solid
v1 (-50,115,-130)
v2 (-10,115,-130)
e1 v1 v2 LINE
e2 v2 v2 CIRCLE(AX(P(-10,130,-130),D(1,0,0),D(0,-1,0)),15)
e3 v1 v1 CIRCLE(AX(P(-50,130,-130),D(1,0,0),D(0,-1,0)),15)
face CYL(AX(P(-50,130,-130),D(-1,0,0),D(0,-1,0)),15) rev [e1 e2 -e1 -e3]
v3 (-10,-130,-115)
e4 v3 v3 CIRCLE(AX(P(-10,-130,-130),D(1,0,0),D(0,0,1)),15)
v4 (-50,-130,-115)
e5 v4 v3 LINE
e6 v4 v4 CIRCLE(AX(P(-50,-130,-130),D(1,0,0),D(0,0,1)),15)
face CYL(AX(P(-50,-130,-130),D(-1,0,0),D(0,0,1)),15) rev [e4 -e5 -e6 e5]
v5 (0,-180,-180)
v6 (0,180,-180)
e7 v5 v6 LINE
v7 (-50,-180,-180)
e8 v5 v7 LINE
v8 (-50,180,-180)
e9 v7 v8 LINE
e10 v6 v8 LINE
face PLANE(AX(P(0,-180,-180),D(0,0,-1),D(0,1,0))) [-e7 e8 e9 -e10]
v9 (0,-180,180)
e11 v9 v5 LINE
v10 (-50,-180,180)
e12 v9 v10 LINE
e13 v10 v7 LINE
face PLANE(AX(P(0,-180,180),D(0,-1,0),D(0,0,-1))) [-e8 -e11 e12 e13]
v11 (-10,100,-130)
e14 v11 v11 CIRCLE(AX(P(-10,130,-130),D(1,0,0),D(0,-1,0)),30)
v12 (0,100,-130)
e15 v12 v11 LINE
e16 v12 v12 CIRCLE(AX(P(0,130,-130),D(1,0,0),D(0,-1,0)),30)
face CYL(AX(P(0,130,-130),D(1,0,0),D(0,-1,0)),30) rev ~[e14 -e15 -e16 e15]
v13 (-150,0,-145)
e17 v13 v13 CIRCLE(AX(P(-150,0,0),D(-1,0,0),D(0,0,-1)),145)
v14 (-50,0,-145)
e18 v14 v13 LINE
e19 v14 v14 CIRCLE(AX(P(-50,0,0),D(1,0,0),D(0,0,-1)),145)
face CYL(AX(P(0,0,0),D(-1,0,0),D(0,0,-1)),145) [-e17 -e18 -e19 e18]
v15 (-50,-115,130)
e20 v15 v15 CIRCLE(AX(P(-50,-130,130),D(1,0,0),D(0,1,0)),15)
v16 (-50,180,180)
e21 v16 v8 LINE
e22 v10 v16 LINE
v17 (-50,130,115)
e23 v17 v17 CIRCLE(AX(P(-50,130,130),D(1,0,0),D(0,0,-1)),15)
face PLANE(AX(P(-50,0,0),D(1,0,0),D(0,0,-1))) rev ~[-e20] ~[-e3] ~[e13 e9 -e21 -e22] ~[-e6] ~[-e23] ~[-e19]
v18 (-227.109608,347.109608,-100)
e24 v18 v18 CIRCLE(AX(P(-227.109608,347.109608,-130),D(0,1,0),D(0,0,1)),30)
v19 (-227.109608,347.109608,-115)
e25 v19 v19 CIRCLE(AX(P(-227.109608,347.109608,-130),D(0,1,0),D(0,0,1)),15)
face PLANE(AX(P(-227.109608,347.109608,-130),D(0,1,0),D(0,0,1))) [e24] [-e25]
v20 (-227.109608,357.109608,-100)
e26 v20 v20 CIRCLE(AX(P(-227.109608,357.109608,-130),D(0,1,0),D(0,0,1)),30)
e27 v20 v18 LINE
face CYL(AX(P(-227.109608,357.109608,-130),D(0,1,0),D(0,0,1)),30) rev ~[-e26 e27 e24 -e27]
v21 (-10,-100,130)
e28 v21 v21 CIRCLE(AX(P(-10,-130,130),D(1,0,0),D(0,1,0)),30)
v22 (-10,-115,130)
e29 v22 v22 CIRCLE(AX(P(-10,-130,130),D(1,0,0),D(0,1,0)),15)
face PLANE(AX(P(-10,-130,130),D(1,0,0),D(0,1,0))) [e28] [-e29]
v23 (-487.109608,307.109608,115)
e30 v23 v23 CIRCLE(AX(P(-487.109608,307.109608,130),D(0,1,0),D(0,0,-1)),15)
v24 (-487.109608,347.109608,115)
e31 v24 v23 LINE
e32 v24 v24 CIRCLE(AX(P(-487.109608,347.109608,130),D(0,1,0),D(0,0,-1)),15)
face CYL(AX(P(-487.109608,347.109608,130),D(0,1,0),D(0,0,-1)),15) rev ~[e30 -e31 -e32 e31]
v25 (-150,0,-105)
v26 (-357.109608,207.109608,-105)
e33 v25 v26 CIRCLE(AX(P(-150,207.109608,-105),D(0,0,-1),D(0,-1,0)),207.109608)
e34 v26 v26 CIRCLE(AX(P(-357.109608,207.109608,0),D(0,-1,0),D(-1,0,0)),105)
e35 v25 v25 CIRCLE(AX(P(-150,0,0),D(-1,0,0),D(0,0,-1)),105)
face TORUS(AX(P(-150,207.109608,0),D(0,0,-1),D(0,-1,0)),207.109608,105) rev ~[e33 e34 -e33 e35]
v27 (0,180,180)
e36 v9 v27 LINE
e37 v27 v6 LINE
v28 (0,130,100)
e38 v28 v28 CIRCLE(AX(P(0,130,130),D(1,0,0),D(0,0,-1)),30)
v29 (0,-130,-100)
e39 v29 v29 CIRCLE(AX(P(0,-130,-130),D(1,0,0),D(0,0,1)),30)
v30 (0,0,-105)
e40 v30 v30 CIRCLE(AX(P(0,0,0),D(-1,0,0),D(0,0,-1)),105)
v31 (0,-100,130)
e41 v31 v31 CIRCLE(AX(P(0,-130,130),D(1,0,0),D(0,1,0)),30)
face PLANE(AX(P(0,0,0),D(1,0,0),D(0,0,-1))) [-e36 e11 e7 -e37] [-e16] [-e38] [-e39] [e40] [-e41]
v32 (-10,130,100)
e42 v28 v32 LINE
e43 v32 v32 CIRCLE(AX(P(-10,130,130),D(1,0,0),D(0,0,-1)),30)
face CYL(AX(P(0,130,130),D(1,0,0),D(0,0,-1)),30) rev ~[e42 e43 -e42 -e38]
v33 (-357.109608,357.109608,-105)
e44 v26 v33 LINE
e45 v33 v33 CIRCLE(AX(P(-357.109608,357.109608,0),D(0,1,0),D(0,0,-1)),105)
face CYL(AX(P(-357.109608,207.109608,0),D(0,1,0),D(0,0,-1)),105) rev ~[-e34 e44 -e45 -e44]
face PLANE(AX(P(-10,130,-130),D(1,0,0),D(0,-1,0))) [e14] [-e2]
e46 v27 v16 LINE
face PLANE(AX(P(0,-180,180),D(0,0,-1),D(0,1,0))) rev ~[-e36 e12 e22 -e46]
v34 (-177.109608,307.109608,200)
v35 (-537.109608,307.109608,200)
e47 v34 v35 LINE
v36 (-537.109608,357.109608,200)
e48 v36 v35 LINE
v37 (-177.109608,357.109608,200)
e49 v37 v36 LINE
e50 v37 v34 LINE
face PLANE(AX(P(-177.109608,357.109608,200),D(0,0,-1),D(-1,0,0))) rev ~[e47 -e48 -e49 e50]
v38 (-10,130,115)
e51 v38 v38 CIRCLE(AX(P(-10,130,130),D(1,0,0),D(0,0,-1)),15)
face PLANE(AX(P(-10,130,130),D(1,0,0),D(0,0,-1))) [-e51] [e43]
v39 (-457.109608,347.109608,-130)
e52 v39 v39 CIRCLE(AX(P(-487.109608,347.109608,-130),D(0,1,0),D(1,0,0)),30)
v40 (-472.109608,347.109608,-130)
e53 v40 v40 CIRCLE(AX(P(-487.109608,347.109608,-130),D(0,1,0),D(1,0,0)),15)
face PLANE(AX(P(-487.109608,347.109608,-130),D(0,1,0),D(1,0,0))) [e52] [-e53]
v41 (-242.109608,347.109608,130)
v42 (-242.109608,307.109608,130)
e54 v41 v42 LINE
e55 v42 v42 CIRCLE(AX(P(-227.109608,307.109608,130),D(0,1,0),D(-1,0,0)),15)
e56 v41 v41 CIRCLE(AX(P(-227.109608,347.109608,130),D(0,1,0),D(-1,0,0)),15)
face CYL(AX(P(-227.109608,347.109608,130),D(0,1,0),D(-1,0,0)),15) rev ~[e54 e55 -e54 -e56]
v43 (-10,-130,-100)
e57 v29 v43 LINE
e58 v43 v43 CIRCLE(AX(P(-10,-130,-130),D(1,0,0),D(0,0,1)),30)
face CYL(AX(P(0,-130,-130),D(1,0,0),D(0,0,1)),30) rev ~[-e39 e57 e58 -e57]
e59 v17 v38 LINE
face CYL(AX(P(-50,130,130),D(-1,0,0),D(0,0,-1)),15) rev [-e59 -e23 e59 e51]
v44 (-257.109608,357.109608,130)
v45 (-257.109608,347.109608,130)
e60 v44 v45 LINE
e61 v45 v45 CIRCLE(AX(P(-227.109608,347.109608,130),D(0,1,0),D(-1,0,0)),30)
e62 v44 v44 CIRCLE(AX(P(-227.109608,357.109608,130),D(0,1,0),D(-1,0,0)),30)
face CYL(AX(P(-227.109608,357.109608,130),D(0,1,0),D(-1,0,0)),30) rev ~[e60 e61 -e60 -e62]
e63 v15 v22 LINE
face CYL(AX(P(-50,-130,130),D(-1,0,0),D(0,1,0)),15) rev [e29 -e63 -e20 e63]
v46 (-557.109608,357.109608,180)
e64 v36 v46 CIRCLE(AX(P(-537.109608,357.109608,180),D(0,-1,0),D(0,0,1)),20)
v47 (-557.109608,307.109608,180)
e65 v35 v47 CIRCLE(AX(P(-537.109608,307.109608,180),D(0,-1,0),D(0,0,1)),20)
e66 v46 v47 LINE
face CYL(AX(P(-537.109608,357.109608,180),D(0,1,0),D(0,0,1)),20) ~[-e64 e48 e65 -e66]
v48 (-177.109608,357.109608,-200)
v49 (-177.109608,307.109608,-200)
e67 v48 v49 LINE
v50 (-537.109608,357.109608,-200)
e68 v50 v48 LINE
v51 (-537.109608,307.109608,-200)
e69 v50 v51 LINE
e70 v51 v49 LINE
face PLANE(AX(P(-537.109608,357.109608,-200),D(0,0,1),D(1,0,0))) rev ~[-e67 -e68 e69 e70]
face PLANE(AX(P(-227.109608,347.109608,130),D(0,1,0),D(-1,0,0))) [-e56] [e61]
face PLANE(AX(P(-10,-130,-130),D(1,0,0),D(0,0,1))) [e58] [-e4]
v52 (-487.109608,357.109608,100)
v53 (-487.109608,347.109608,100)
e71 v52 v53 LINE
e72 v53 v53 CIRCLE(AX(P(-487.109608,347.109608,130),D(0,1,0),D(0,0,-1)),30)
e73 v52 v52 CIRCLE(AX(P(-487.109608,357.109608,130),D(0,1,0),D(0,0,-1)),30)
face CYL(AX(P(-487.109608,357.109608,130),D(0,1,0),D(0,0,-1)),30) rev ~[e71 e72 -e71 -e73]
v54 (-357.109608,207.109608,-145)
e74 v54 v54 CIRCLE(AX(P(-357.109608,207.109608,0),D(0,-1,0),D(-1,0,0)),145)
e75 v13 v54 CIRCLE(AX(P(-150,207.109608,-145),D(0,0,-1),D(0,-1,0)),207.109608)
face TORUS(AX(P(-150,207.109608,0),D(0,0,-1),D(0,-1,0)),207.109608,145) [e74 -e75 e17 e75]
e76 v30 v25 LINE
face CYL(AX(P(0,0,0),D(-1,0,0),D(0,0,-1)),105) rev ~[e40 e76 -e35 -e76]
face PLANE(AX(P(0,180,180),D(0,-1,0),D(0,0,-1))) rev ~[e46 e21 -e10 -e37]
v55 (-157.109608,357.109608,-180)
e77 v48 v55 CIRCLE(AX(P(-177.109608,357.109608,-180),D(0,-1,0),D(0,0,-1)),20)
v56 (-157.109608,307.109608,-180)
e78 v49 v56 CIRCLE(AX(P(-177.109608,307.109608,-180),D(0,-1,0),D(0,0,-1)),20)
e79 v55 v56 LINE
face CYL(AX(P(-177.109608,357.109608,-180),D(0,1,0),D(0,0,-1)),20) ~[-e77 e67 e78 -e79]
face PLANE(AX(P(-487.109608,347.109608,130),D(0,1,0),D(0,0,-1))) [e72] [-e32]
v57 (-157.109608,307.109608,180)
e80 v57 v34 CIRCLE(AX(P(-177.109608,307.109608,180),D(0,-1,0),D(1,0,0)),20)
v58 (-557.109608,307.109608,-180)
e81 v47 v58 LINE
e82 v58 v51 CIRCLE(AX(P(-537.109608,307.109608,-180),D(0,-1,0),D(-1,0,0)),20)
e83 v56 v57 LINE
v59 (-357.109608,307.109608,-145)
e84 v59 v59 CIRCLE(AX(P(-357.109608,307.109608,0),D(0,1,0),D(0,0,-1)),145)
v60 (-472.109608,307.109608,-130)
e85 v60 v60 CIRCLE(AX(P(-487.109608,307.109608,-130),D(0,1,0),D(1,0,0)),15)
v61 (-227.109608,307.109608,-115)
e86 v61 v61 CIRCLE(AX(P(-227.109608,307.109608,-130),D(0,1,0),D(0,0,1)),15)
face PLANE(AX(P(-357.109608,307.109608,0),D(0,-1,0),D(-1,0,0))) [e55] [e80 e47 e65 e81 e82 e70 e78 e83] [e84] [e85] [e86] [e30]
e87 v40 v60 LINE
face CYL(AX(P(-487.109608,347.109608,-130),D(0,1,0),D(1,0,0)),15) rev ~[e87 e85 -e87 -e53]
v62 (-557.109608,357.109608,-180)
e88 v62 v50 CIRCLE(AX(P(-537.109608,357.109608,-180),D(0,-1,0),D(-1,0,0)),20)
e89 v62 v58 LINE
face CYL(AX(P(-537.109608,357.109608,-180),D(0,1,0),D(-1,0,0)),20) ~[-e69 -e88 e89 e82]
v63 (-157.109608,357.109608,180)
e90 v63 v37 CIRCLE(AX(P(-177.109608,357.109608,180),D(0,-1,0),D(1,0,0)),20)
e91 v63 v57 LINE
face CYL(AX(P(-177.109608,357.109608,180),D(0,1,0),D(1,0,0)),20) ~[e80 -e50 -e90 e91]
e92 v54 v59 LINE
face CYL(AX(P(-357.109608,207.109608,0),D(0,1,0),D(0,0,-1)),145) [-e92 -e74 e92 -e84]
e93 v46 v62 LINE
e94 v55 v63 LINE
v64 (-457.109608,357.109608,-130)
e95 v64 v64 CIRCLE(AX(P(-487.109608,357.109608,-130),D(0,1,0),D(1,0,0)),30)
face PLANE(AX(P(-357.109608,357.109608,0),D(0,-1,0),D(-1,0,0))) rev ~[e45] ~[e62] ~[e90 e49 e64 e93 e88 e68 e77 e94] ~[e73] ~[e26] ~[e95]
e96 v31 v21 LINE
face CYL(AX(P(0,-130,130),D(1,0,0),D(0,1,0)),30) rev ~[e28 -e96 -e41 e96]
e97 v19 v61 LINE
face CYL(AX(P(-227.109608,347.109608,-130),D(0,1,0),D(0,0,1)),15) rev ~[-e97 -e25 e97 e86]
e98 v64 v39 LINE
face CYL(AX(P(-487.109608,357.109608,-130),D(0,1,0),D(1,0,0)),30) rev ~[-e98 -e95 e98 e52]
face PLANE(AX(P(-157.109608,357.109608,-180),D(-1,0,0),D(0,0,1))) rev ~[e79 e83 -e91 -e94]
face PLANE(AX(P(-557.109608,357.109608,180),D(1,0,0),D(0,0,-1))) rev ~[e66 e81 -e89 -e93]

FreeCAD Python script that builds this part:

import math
import FreeCAD as App
import Part
import Sketcher


def add_polygon(sketch, points):
    """Adds a closed chain of lines whose ends are joined by coincident constraints."""
    first, n = sketch.GeometryCount, len(points)
    for a, b in zip(points, points[1:] + points[:1]):
        sketch.addGeometry(Part.LineSegment(App.Vector(*a, 0), App.Vector(*b, 0)), False)
    for i in range(n):
        sketch.addConstraint(Sketcher.Constraint("Coincident", first + i, 2, first + (i + 1) % n, 1))

doc = App.newDocument("Part")
body = doc.addObject("PartDesign::Body", "Body")

sketch1 = body.newObject("Sketcher::SketchObject", "Sketch")
sketch1.AttachmentSupport = (doc.getObject("YZ_Plane"), [""])
sketch1.MapMode = "FlatFace"
sketch1.addGeometry(Part.Circle(App.Vector(0, 0, 0), App.Vector(0, 0, 1), 145), False)
sketch1.addGeometry(Part.Circle(App.Vector(0, 0, 0), App.Vector(0, 0, 1), 105), False)
sketch1.addConstraint(Sketcher.Constraint("Coincident", 0, 3, -1, 1))
sketch1.addConstraint(Sketcher.Constraint("Coincident", 1, 3, -1, 1))
sketch1.addConstraint(Sketcher.Constraint("Diameter", 0, 290.0))
sketch1.addConstraint(Sketcher.Constraint("Diameter", 1, 210.0))

sketch2 = body.newObject("Sketcher::SketchObject", "Sketch001")
sketch2.AttachmentSupport = (doc.getObject("XY_Plane"), [""])
sketch2.MapMode = "FlatFace"
sketch2.addGeometry(Part.LineSegment(App.Vector(0, 0, 0), App.Vector(-150, 0, 0)), False)
sketch2.addGeometry(Part.ArcOfCircle(Part.Circle(App.Vector(-150, 207, 0), App.Vector(0, 0, 1), 207), math.radians(180), math.radians(270)), False)
sketch2.addGeometry(Part.LineSegment(App.Vector(-357, 207, 0), App.Vector(-357, 357, 0)), False)
sketch2.addConstraint(Sketcher.Constraint("Tangent", 0, 2, 1, 2))
sketch2.addConstraint(Sketcher.Constraint("Tangent", 1, 1, 2, 1))
sketch2.addConstraint(Sketcher.Constraint("Horizontal", 0))
sketch2.addConstraint(Sketcher.Constraint("Vertical", 2))
sketch2.addConstraint(Sketcher.Constraint("Coincident", 0, 1, -1, 1))
sketch2.addConstraint(Sketcher.Constraint("Equal", 0, 2))
sketch2.addConstraint(Sketcher.Constraint("DistanceX", 0, 2, 0, 1, 150.0))
sketch2.addConstraint(Sketcher.Constraint("Radius", 1, 207.109608))
doc.recompute()

additivepipe = body.newObject("PartDesign::AdditivePipe", "AdditivePipe")
additivepipe.Profile = sketch1
additivepipe.Spine = (sketch2, ["Edge1", "Edge2", "Edge3"])

sketch3 = body.newObject("Sketcher::SketchObject", "Sketch002")
sketch3.AttachmentSupport = (doc.getObject("YZ_Plane"), [""])
sketch3.MapMode = "FlatFace"
add_polygon(sketch3, [(180, 180), (-180, 180), (-180, -180), (180, -180)])
sketch3.addGeometry(Part.Circle(App.Vector(0, 0, 0), App.Vector(0, 0, 1), 145), False)
sketch3.addConstraint(Sketcher.Constraint("Horizontal", 0))
sketch3.addConstraint(Sketcher.Constraint("Vertical", 1))
sketch3.addConstraint(Sketcher.Constraint("Horizontal", 2))
sketch3.addConstraint(Sketcher.Constraint("Vertical", 3))
sketch3.addConstraint(Sketcher.Constraint("Coincident", 4, 3, -1, 1))
sketch3.addConstraint(Sketcher.Constraint("Symmetric", 0, 2, 2, 2, -1, 1))
sketch3.addConstraint(Sketcher.Constraint("Equal", 2, 1))
sketch3.addConstraint(Sketcher.Constraint("Diameter", 4, 290.0))
sketch3.addConstraint(Sketcher.Constraint("DistanceX", 0, 2, 0, 1, 360.0))
pad1 = body.newObject("PartDesign::Pad", "Pad")
pad1.Profile = sketch3
pad1.Length = 50
pad1.Reversed = True

sketch4 = body.newObject("Sketcher::SketchObject", "Sketch003")
sketch4.AttachmentSupport = (doc.getObject("XZ_Plane"), [""])
sketch4.MapMode = "FlatFace"
sketch4.AttachmentOffset = App.Placement(App.Vector(0, 0, -357.109608), App.Rotation())
sketch4.addGeometry(Part.LineSegment(App.Vector(-177, -200, 0), App.Vector(-537, -200, 0)), False)
sketch4.addGeometry(Part.ArcOfCircle(Part.Circle(App.Vector(-537, -180, 0), App.Vector(0, 0, 1), 20), math.radians(-180), math.radians(-90)), False)
sketch4.addGeometry(Part.LineSegment(App.Vector(-557, -180, 0), App.Vector(-557, 180, 0)), False)
sketch4.addGeometry(Part.ArcOfCircle(Part.Circle(App.Vector(-537, 180, 0), App.Vector(0, 0, 1), 20), math.radians(90), math.radians(180)), False)
sketch4.addGeometry(Part.LineSegment(App.Vector(-537, 200, 0), App.Vector(-177, 200, 0)), False)
sketch4.addGeometry(Part.ArcOfCircle(Part.Circle(App.Vector(-177, 180, 0), App.Vector(0, 0, 1), 20), math.radians(0), math.radians(90)), False)
sketch4.addGeometry(Part.LineSegment(App.Vector(-157, 180, 0), App.Vector(-157, -180, 0)), False)
sketch4.addGeometry(Part.ArcOfCircle(Part.Circle(App.Vector(-177, -180, 0), App.Vector(0, 0, 1), 20), math.radians(-90), math.radians(0)), False)
sketch4.addGeometry(Part.Circle(App.Vector(-357, 0, 0), App.Vector(0, 0, 1), 145), False)
sketch4.addConstraint(Sketcher.Constraint("Tangent", 0, 2, 1, 2))
sketch4.addConstraint(Sketcher.Constraint("Tangent", 1, 1, 2, 1))
sketch4.addConstraint(Sketcher.Constraint("Tangent", 2, 2, 3, 2))
sketch4.addConstraint(Sketcher.Constraint("Tangent", 3, 1, 4, 1))
sketch4.addConstraint(Sketcher.Constraint("Tangent", 4, 2, 5, 2))
sketch4.addConstraint(Sketcher.Constraint("Tangent", 5, 1, 6, 1))
sketch4.addConstraint(Sketcher.Constraint("Tangent", 6, 2, 7, 2))
sketch4.addConstraint(Sketcher.Constraint("Tangent", 7, 1, 0, 1))
sketch4.addConstraint(Sketcher.Constraint("Horizontal", 0))
sketch4.addConstraint(Sketcher.Constraint("Vertical", 2))
sketch4.addConstraint(Sketcher.Constraint("Horizontal", 4))
sketch4.addConstraint(Sketcher.Constraint("Vertical", 6))
sketch4.addConstraint(Sketcher.Constraint("Equal", 1, 3))
sketch4.addConstraint(Sketcher.Constraint("Equal", 3, 5))
sketch4.addConstraint(Sketcher.Constraint("Equal", 5, 7))
sketch4.addConstraint(Sketcher.Constraint("PointOnObject", 8, 3, -1))
sketch4.addConstraint(Sketcher.Constraint("Equal", 4, 2))
sketch4.addConstraint(Sketcher.Constraint("Diameter", 8, 290.0))
sketch4.addConstraint(Sketcher.Constraint("Radius", 1, 20.0))
sketch4.addConstraint(Sketcher.Constraint("DistanceX", 0, 2, 0, 1, 360.0))
sketch4.addConstraint(Sketcher.Constraint("DistanceY", 1, 3, -1, 1, 180.0))
sketch4.addConstraint(Sketcher.Constraint("DistanceX", 1, 3, 8, 3, 180.0))
sketch4.addConstraint(Sketcher.Constraint("DistanceX", 1, 3, -1, 1, 537.109608))
pad2 = body.newObject("PartDesign::Pad", "Pad001")
pad2.Profile = sketch4
pad2.Length = 50

sketch5 = body.newObject("Sketcher::SketchObject", "Sketch004")
sketch5.AttachmentSupport = (doc.getObject("XZ_Plane"), [""])
sketch5.MapMode = "FlatFace"
sketch5.AttachmentOffset = App.Placement(App.Vector(0, 0, -357.109608), App.Rotation())
sketch5.addGeometry(Part.Circle(App.Vector(-487, -130, 0), App.Vector(0, 0, 1), 30), False)
sketch5.addConstraint(Sketcher.Constraint("Diameter", 0, 60.0))
sketch5.addConstraint(Sketcher.Constraint("DistanceY", 0, 3, -1, 1, 130.0))
sketch5.addConstraint(Sketcher.Constraint("DistanceX", 0, 3, -1, 1, 487.109608))
pocket1 = body.newObject("PartDesign::Pocket", "Pocket")
pocket1.Profile = sketch5
pocket1.Length = 10
pocket1.Reversed = True

sketch6 = body.newObject("Sketcher::SketchObject", "Sketch005")
sketch6.AttachmentSupport = (doc.getObject("XZ_Plane"), [""])
sketch6.MapMode = "FlatFace"
sketch6.AttachmentOffset = App.Placement(App.Vector(0, 0, -347.109608), App.Rotation())
sketch6.addGeometry(Part.Circle(App.Vector(-487, -130, 0), App.Vector(0, 0, 1), 15), False)
sketch6.addConstraint(Sketcher.Constraint("Diameter", 0, 30.0))
sketch6.addConstraint(Sketcher.Constraint("DistanceY", 0, 3, -1, 1, 130.0))
sketch6.addConstraint(Sketcher.Constraint("DistanceX", 0, 3, -1, 1, 487.109608))
pocket2 = body.newObject("PartDesign::Pocket", "Pocket001")
pocket2.Profile = sketch6
pocket2.Length = 40
pocket2.Reversed = True
doc.recompute()

datumline = body.newObject("PartDesign::Line", "DatumLine")
datumline.Placement = App.Placement(App.Vector(-357.109608, 0, 0), App.Rotation(App.Vector(0, 0, 1), App.Vector(0, 1, 0)))
polarpattern = body.newObject("PartDesign::PolarPattern", "PolarPattern")
polarpattern.Originals = [pocket1, pocket2]
polarpattern.Axis = (datumline, [""])
polarpattern.Angle = 360
polarpattern.Occurrences = 4
body.Tip = polarpattern

sketch7 = body.newObject("Sketcher::SketchObject", "Sketch006")
sketch7.AttachmentSupport = (doc.getObject("YZ_Plane"), [""])
sketch7.MapMode = "FlatFace"
sketch7.addGeometry(Part.Circle(App.Vector(130, 130, 0), App.Vector(0, 0, 1), 30), False)
sketch7.addConstraint(Sketcher.Constraint("Diameter", 0, 60.0))
sketch7.addConstraint(Sketcher.Constraint("DistanceX", -1, 1, 0, 3, 130.0))
sketch7.addConstraint(Sketcher.Constraint("DistanceY", -1, 1, 0, 3, 130.0))
pocket3 = body.newObject("PartDesign::Pocket", "Pocket002")
pocket3.Profile = sketch7
pocket3.Length = 10

sketch8 = body.newObject("Sketcher::SketchObject", "Sketch007")
sketch8.AttachmentSupport = (doc.getObject("YZ_Plane"), [""])
sketch8.MapMode = "FlatFace"
sketch8.AttachmentOffset = App.Placement(App.Vector(0, 0, -50), App.Rotation())
sketch8.addGeometry(Part.Circle(App.Vector(130, 130, 0), App.Vector(0, 0, 1), 15), False)
sketch8.addConstraint(Sketcher.Constraint("Diameter", 0, 30.0))
sketch8.addConstraint(Sketcher.Constraint("DistanceX", -1, 1, 0, 3, 130.0))
sketch8.addConstraint(Sketcher.Constraint("DistanceY", -1, 1, 0, 3, 130.0))
pocket4 = body.newObject("PartDesign::Pocket", "Pocket003")
pocket4.Profile = sketch8
pocket4.Length = 40
pocket4.Reversed = True
doc.recompute()

polarpattern2 = body.newObject("PartDesign::PolarPattern", "PolarPattern001")
polarpattern2.Originals = [pocket3, pocket4]
polarpattern2.Axis = (doc.getObject("X_Axis"), [""])
polarpattern2.Angle = 360
polarpattern2.Occurrences = 4
body.Tip = polarpattern2

doc.recompute()
